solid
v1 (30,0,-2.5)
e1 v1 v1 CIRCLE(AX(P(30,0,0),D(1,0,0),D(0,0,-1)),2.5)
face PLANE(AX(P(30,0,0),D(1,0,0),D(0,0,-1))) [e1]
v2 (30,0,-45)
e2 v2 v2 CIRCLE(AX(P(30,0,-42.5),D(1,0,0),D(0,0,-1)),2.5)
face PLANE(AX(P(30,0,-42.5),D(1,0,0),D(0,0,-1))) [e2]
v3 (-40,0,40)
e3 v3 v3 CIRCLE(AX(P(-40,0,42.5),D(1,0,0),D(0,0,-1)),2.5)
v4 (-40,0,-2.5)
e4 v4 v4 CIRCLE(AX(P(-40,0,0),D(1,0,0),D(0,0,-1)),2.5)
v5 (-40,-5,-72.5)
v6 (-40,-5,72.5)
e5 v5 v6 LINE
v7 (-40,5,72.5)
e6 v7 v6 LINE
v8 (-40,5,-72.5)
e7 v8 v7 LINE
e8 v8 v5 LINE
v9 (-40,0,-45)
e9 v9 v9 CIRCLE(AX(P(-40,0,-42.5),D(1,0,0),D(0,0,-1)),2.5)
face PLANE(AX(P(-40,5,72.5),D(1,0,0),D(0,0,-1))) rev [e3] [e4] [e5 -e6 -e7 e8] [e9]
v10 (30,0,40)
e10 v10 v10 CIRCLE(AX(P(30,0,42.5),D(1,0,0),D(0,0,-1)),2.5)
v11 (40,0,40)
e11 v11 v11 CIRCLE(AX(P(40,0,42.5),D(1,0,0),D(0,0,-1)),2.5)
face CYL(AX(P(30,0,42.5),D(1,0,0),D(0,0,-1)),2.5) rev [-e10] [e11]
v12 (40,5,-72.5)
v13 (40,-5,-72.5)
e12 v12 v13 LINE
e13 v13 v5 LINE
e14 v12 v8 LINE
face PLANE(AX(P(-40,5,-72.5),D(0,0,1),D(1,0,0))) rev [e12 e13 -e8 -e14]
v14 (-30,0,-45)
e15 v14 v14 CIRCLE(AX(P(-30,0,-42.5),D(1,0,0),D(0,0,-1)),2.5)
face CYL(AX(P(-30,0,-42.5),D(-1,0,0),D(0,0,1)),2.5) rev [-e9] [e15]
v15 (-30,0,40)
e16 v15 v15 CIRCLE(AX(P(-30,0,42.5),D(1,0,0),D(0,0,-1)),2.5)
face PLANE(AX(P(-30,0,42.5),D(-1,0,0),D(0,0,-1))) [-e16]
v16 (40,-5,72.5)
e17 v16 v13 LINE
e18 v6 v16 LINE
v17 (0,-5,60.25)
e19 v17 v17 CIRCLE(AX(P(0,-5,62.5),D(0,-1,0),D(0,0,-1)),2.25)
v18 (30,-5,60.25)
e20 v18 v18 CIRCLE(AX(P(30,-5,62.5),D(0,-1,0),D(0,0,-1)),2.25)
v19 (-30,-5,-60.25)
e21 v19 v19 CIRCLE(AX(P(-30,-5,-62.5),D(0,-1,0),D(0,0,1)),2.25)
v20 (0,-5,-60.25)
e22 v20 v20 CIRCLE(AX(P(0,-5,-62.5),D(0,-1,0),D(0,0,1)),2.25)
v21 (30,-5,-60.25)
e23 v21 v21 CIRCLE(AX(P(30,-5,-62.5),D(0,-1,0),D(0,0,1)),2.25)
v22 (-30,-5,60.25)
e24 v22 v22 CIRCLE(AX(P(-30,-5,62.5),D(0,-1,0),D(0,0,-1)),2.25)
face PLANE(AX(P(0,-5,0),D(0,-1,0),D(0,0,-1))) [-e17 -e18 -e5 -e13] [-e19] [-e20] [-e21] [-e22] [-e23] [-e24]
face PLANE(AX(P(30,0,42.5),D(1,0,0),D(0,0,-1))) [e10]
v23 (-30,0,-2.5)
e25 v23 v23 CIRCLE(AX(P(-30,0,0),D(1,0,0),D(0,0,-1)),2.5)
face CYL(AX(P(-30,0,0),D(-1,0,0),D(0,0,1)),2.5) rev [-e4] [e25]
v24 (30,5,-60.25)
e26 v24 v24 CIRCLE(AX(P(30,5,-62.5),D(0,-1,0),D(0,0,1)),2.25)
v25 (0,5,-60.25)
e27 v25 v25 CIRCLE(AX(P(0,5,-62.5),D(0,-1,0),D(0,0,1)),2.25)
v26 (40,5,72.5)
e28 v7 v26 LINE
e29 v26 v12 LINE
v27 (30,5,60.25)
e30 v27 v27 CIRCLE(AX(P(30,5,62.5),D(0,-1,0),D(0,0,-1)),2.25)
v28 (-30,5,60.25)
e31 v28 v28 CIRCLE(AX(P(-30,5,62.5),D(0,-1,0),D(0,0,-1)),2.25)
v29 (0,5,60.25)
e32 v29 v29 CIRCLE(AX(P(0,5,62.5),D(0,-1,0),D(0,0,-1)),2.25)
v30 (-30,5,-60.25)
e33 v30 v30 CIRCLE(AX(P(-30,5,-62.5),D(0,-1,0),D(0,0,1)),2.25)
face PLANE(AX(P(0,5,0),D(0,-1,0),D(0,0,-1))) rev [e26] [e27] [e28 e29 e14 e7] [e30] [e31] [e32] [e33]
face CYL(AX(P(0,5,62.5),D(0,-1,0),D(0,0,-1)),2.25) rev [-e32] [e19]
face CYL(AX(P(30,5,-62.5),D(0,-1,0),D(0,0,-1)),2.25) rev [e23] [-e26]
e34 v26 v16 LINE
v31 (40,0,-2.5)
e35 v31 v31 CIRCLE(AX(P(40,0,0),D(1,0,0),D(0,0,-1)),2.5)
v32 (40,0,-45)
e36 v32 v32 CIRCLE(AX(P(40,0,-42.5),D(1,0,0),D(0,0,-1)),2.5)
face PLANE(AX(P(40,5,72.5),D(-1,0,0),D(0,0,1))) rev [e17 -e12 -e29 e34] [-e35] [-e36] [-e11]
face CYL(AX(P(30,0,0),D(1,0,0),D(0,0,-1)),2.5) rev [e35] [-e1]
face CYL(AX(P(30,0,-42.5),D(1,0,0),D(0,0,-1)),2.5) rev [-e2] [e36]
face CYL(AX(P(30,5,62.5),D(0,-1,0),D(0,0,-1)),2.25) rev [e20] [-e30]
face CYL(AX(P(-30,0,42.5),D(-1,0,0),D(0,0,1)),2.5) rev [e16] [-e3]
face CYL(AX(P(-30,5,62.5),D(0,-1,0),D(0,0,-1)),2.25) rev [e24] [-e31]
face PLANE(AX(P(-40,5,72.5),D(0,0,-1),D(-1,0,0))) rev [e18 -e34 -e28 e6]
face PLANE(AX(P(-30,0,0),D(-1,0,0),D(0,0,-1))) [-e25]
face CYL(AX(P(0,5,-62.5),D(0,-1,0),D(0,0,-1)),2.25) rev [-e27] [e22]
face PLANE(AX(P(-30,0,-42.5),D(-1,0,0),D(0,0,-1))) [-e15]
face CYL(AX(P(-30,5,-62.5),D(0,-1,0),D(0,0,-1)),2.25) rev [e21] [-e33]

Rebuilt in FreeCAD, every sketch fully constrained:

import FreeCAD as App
import Part
import Sketcher

V = App.Vector

doc = App.newDocument("Part")
params = doc.addObject("Spreadsheet::Sheet", "Params")
for row, (alias, value) in enumerate([
    ("sketch1_width", "80 mm"),
    ("sketch1_height", "145 mm"),
    ("pad1_length", "10 mm"),
    ("sketch2_diameter", "5 mm"),
    ("pocket1_length", "10 mm"),
    ("sketch3_diameter", "4.5 mm"),
], start=1):
    params.set(f"A{row}", alias)
    params.set(f"B{row}", "=" + value)
    params.setAlias(f"B{row}", alias)

body = doc.addObject("PartDesign::Body", "Body")

# Sketch on XZ plane
sketch1 = body.newObject("Sketcher::SketchObject", "Sketch")
sketch1.AttachmentSupport = (doc.getObject("XZ_Plane"), [""])
sketch1.MapMode = "FlatFace"
sketch1.addGeometry(Part.LineSegment(V(-40, -72, 0), V(-40, 72, 0)), False)
sketch1.addGeometry(Part.LineSegment(V(-40, 72, 0), V(40, 72, 0)), False)
sketch1.addGeometry(Part.LineSegment(V(40, 72, 0), V(40, -72, 0)), False)
sketch1.addGeometry(Part.LineSegment(V(40, -72, 0), V(-40, -72, 0)), False)
sketch1.addConstraint(Sketcher.Constraint("Coincident", 0, 2, 1, 1))
sketch1.addConstraint(Sketcher.Constraint("Coincident", 1, 2, 2, 1))
sketch1.addConstraint(Sketcher.Constraint("Coincident", 2, 2, 3, 1))
sketch1.addConstraint(Sketcher.Constraint("Coincident", 3, 2, 0, 1))
sketch1.addConstraint(Sketcher.Constraint("Vertical", 0))
sketch1.addConstraint(Sketcher.Constraint("Horizontal", 1))
sketch1.addConstraint(Sketcher.Constraint("Vertical", 2))
sketch1.addConstraint(Sketcher.Constraint("Horizontal", 3))
sketch1.addConstraint(Sketcher.Constraint("Symmetric", 0, 2, 2, 2, -1, 1))
sketch1.addConstraint(Sketcher.Constraint("DistanceX", 1, 1, 1, 2, 80.0))
sketch1.addConstraint(Sketcher.Constraint("DistanceY", 0, 1, 0, 2, 145.0))
sketch1.setExpression("Constraints[9]", "Params.sketch1_width")
sketch1.setExpression("Constraints[10]", "Params.sketch1_height")
pad1 = body.newObject("PartDesign::Pad", "Pad")
pad1.Profile = sketch1
pad1.setExpression("Length", "Params.pad1_length")
pad1.Midplane = True

# Sketch on YZ plane
sketch2 = body.newObject("Sketcher::SketchObject", "Sketch001")
sketch2.AttachmentSupport = (doc.getObject("YZ_Plane"), [""])
sketch2.MapMode = "FlatFace"
sketch2.AttachmentOffset = App.Placement(V(0, 0, 40), App.Rotation())
sketch2.addGeometry(Part.Circle(V(0, 0, 0), V(0, 0, 1), 2.5), False)
sketch2.addGeometry(Part.Circle(V(0, -42.5, 0), V(0, 0, 1), 2.5), False)
sketch2.addGeometry(Part.Circle(V(0, 42.5, 0), V(0, 0, 1), 2.5), False)
sketch2.addConstraint(Sketcher.Constraint("Coincident", 0, 3, -1, 1))
sketch2.addConstraint(Sketcher.Constraint("Equal", 0, 1))
sketch2.addConstraint(Sketcher.Constraint("Equal", 1, 2))
sketch2.addConstraint(Sketcher.Constraint("Symmetric", 1, 3, 2, 3, -1, 1))
sketch2.addConstraint(Sketcher.Constraint("PointOnObject", 1, 3, -2))
sketch2.addConstraint(Sketcher.Constraint("Diameter", 0, 5.0))
sketch2.addConstraint(Sketcher.Constraint("DistanceY", 1, 3, 2, 3, 85.0))
sketch2.setExpression("Constraints[5]", "Params.sketch2_diameter")
pocket1 = body.newObject("PartDesign::Pocket", "Pocket")
pocket1.Profile = sketch2
pocket1.setExpression("Length", "Params.pocket1_length")
doc.recompute()

mirrored = body.newObject("PartDesign::Mirrored", "Mirrored")
mirrored.Originals = [pocket1]
mirrored.MirrorPlane = (doc.getObject("YZ_Plane"), [""])
body.Tip = mirrored

# Sketch on XZ plane
sketch3 = body.newObject("Sketcher::SketchObject", "Sketch002")
sketch3.AttachmentSupport = (doc.getObject("XZ_Plane"), [""])
sketch3.MapMode = "FlatFace"
sketch3.AttachmentOffset = App.Placement(V(0, 0, 5), App.Rotation())
sketch3.addGeometry(Part.Circle(V(-30, 62.5, 0), V(0, 0, 1), 2.2), False)
sketch3.addGeometry(Part.Circle(V(0, 62.5, 0), V(0, 0, 1), 2.2), False)
sketch3.addGeometry(Part.Circle(V(30, 62.5, 0), V(0, 0, 1), 2.2), False)
sketch3.addGeometry(Part.Circle(V(30, -62.5, 0), V(0, 0, 1), 2.2), False)
sketch3.addGeometry(Part.Circle(V(0, -62.5, 0), V(0, 0, 1), 2.2), False)
sketch3.addGeometry(Part.Circle(V(-30, -62.5, 0), V(0, 0, 1), 2.2), False)
sketch3.addConstraint(Sketcher.Constraint("Equal", 0, 1))
sketch3.addConstraint(Sketcher.Constraint("Equal", 1, 2))
sketch3.addConstraint(Sketcher.Constraint("Equal", 2, 3))
sketch3.addConstraint(Sketcher.Constraint("Equal", 3, 4))
sketch3.addConstraint(Sketcher.Constraint("Equal", 4, 5))
sketch3.addConstraint(Sketcher.Constraint("Symmetric", 0, 3, 3, 3, -1, 1))
sketch3.addConstraint(Sketcher.Constraint("Symmetric", 1, 3, 4, 3, -1, 1))
sketch3.addConstraint(Sketcher.Constraint("Symmetric", 2, 3, 5, 3, -1, 1))
sketch3.addConstraint(Sketcher.Constraint("Symmetric", 0, 3, 2, 3, -2))
sketch3.addConstraint(Sketcher.Constraint("PointOnObject", 1, 3, -2))
sketch3.addConstraint(Sketcher.Constraint("Horizontal", 0, 3, 1, 3))
sketch3.addConstraint(Sketcher.Constraint("Diameter", 0, 4.5))
sketch3.addConstraint(Sketcher.Constraint("DistanceX", 0, 3, -1, 1, 30.0))
sketch3.addConstraint(Sketcher.Constraint("DistanceY", 3, 3, 2, 3, 125.0))
sketch3.setExpression("Constraints[11]", "Params.sketch3_diameter")
pocket2 = body.newObject("PartDesign::Pocket", "Pocket001")
pocket2.Profile = sketch3
pocket2.Type = "ThroughAll"

doc.recompute()
